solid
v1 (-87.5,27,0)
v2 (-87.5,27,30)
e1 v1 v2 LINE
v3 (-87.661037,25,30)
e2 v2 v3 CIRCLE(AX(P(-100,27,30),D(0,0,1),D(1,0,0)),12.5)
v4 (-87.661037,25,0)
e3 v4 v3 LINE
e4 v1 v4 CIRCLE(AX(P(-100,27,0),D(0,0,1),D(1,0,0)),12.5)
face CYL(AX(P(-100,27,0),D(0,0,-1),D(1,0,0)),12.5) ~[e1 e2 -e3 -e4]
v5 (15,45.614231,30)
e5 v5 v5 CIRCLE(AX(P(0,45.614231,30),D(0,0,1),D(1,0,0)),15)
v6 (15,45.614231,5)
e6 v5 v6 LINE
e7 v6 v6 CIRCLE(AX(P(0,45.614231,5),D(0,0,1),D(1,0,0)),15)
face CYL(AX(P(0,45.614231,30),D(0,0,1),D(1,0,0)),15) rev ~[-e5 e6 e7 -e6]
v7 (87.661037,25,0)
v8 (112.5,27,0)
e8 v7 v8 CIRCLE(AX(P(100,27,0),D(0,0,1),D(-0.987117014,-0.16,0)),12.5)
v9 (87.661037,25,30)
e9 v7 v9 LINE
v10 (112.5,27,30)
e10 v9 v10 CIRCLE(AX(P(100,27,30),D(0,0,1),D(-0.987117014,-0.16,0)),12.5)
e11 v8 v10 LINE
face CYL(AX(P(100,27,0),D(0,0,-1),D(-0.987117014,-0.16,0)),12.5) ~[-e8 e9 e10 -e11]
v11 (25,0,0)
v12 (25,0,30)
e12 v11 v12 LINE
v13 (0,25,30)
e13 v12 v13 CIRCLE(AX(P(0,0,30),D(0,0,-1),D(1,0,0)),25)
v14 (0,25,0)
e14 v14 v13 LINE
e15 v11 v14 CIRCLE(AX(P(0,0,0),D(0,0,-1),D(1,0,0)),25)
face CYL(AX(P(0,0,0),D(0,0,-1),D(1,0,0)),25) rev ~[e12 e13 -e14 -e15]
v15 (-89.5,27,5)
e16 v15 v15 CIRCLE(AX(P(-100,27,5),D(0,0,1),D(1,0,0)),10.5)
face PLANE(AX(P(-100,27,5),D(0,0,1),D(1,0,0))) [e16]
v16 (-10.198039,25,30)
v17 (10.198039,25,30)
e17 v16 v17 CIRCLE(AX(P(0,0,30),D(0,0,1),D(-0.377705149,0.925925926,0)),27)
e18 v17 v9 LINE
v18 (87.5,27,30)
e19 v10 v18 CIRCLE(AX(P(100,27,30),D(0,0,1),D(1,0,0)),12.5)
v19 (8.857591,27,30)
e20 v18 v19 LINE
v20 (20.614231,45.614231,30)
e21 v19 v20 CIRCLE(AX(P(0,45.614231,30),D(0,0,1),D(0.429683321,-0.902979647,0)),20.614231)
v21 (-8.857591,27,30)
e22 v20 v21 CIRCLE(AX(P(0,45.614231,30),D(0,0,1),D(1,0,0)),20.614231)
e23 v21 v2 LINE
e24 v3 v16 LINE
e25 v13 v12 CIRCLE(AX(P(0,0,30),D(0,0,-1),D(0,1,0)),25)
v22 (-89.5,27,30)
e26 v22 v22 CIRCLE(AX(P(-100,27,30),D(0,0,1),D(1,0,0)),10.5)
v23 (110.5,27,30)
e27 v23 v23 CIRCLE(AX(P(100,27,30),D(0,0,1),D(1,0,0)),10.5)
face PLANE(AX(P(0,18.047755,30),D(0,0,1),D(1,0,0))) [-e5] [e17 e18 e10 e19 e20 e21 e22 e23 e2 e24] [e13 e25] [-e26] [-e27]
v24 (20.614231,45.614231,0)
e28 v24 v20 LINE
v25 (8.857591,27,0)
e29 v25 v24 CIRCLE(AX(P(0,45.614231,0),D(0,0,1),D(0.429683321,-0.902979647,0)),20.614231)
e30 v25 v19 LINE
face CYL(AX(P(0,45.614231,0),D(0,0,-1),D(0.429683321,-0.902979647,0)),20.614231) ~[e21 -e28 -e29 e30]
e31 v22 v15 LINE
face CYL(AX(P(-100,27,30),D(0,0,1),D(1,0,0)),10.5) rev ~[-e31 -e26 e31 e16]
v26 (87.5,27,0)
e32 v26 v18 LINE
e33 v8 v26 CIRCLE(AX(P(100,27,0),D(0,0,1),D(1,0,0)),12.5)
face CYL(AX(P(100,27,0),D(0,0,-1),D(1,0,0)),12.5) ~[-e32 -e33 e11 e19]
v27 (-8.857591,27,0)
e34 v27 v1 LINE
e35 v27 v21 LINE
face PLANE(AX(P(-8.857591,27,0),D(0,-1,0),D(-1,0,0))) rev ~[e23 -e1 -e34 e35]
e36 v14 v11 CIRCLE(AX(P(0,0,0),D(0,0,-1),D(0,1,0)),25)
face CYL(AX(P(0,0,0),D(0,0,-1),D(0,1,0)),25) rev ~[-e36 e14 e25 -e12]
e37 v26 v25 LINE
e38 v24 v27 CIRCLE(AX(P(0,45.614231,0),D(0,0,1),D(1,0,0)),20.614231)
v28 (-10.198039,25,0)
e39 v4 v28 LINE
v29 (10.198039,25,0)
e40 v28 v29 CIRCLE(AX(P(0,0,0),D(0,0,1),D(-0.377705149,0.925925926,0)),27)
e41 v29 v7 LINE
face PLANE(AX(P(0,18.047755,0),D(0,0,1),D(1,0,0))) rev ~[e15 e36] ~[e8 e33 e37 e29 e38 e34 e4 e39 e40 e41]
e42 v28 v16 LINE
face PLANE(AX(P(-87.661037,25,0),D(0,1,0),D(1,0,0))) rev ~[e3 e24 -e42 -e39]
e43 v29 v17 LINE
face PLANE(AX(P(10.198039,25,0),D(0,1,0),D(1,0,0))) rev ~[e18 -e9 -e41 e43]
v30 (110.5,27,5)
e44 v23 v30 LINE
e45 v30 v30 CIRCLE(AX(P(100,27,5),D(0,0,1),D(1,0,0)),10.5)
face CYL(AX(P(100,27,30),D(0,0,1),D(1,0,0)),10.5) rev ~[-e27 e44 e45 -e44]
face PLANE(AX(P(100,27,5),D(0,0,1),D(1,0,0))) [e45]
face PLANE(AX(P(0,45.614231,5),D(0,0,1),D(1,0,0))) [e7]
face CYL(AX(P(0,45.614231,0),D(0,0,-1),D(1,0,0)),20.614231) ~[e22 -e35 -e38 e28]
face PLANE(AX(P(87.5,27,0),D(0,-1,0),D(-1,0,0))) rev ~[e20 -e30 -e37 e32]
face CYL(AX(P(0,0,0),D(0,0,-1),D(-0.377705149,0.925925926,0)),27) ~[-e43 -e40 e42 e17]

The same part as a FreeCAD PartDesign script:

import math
import FreeCAD as App
import Part
import Sketcher
from FreeCAD import Vector
Q = App.Units.Quantity

doc = App.newDocument("Part")
body = doc.addObject("PartDesign::Body", "Body")

sketch1 = doc.addObject("Sketcher::SketchObject", "Sketch")
body.addObject(sketch1)
sketch1.AttachmentSupport = (doc.XY_Plane, [""])
sketch1.MapMode = "FlatFace"
sketch1.addGeometry([
    Part.LineSegment(Vector(87.5, 27, 0), Vector(8.9, 27, 0)),
    Part.ArcOfCircle(Part.Circle(Vector(0, 45.6, 0), Vector(0, 0, 1), 20.6), math.radians(-65), math.radians(0)),
    Part.ArcOfCircle(Part.Circle(Vector(0, 45.6, 0), Vector(0, 0, 1), 20.6), math.radians(0), math.radians(245)),
    Part.LineSegment(Vector(-8.9, 27, 0), Vector(-87.5, 27, 0)),
    Part.ArcOfCircle(Part.Circle(Vector(-100, 27, 0), Vector(0, 0, 1), 12.5), math.radians(0), math.radians(351)),
    Part.LineSegment(Vector(-87.7, 25, 0), Vector(-10.2, 25, 0)),
    Part.ArcOfCircle(Part.Circle(Vector(0, 0, 0), Vector(0, 0, 1), 27), math.radians(112), math.radians(428)),
    Part.LineSegment(Vector(10.2, 25, 0), Vector(87.7, 25, 0)),
    Part.ArcOfCircle(Part.Circle(Vector(100, 27, 0), Vector(0, 0, 1), 12.5), math.radians(-171), math.radians(0)),
    Part.ArcOfCircle(Part.Circle(Vector(100, 27, 0), Vector(0, 0, 1), 12.5), math.radians(0), math.radians(180)),
    Part.ArcOfCircle(Part.Circle(Vector(0, 0, 0), Vector(0, 0, 1), 25), math.radians(90), math.radians(360)),
    Part.ArcOfCircle(Part.Circle(Vector(0, 0, 0), Vector(0, 0, 1), 25), math.radians(0), math.radians(90)),
], False)
sketch1.addConstraint([
    Sketcher.Constraint("Coincident", 0, 2, 1, 1),
    Sketcher.Constraint("Tangent", 1, 2, 2, 1),
    Sketcher.Constraint("Coincident", 2, 2, 3, 1),
    Sketcher.Constraint("Coincident", 3, 2, 4, 1),
    Sketcher.Constraint("Coincident", 4, 2, 5, 1),
    Sketcher.Constraint("Coincident", 5, 2, 6, 1),
    Sketcher.Constraint("Coincident", 6, 2, 7, 1),
    Sketcher.Constraint("Coincident", 7, 2, 8, 1),
    Sketcher.Constraint("Tangent", 8, 2, 9, 1),
    Sketcher.Constraint("Coincident", 9, 2, 0, 1),
    Sketcher.Constraint("Tangent", 10, 1, 11, 2),
    Sketcher.Constraint("Coincident", 11, 1, 10, 2),
    Sketcher.Constraint("Horizontal", 0),
    Sketcher.Constraint("Horizontal", 3),
    Sketcher.Constraint("Horizontal", 5),
    Sketcher.Constraint("Horizontal", 7),
    Sketcher.Constraint("Coincident", 6, 3, -1, 1),
    Sketcher.Constraint("Coincident", 10, 3, -1, 1),
    Sketcher.Constraint("Equal", 1, 2),
    Sketcher.Constraint("Equal", 4, 8),
    Sketcher.Constraint("Equal", 8, 9),
    Sketcher.Constraint("Symmetric", 4, 3, 8, 3, -2),
    Sketcher.Constraint("Symmetric", 0, 2, 2, 2, -2),
    Sketcher.Constraint("PointOnObject", 10, 1, -2),
    Sketcher.Constraint("PointOnObject", 11, 1, -1),
    Sketcher.Constraint("Horizontal", 9, 3, 0, 2),
    Sketcher.Constraint("Horizontal", 2, 3, 1, 2),
    Sketcher.Constraint("Horizontal", 5, 2, 6, 2),
    Sketcher.Constraint("Horizontal", 3, 2, 8, 2),
    Sketcher.Constraint("Horizontal", 7, 2, 10, 1),
    Sketcher.Constraint("Radius", 6, Q("27 mm")),
    Sketcher.Constraint("Radius", 10, Q("25 mm")),
    Sketcher.Constraint("Radius", 4, Q("12.5 mm")),
    Sketcher.Constraint("DistanceX", 4, 3, -1, 1, Q("100 mm")),
    Sketcher.Constraint("DistanceY", -1, 1, 4, 3, Q("27 mm")),
    Sketcher.Constraint("Radius", 1, Q("20.614231 mm")),
    Sketcher.Constraint("DistanceX", 0, 2, 0, 1, Q("78.642409 mm")),
])
pad1 = doc.addObject("PartDesign::Pad", "Pad")
body.addObject(pad1)
pad1.Profile = sketch1
pad1.Length = 30

sketch2 = doc.addObject("Sketcher::SketchObject", "Sketch001")
body.addObject(sketch2)
sketch2.AttachmentSupport = (doc.XY_Plane, [""])
sketch2.MapMode = "FlatFace"
sketch2.AttachmentOffset = App.Placement(Vector(0, 0, 30), App.Rotation())
sketch2.addGeometry([
    Part.Circle(Vector(100, 27, 0), Vector(0, 0, 1), 10),
    Part.Circle(Vector(-100, 27, 0), Vector(0, 0, 1), 10),
], False)
sketch2.addConstraint([
    Sketcher.Constraint("Equal", 0, 1),
    Sketcher.Constraint("Symmetric", 0, 3, 1, 3, -2),
    Sketcher.Constraint("Diameter", 0, Q("21 mm")),
    Sketcher.Constraint("DistanceX", -1, 1, 0, 3, Q("100 mm")),
    Sketcher.Constraint("DistanceY", -1, 1, 0, 3, Q("27 mm")),
])
pocket1 = doc.addObject("PartDesign::Pocket", "Pocket")
body.addObject(pocket1)
pocket1.Profile = sketch2
pocket1.Length = 25

sketch3 = doc.addObject("Sketcher::SketchObject", "Sketch002")
body.addObject(sketch3)
sketch3.AttachmentSupport = (doc.XY_Plane, [""])
sketch3.MapMode = "FlatFace"
sketch3.AttachmentOffset = App.Placement(Vector(0, 0, 30), App.Rotation())
sketch3.addGeometry(Part.Circle(Vector(0, 46, 0), Vector(0, 0, 1), 15), False)
sketch3.addConstraint([
    Sketcher.Constraint("PointOnObject", 0, 3, -2),
    Sketcher.Constraint("Diameter", 0, Q("30 mm")),
    Sketcher.Constraint("DistanceY", -1, 1, 0, 3, Q("45.614231 mm")),
])
pocket2 = doc.addObject("PartDesign::Pocket", "Pocket001")
body.addObject(pocket2)
pocket2.Profile = sketch3
pocket2.Length = 25

doc.recompute()
